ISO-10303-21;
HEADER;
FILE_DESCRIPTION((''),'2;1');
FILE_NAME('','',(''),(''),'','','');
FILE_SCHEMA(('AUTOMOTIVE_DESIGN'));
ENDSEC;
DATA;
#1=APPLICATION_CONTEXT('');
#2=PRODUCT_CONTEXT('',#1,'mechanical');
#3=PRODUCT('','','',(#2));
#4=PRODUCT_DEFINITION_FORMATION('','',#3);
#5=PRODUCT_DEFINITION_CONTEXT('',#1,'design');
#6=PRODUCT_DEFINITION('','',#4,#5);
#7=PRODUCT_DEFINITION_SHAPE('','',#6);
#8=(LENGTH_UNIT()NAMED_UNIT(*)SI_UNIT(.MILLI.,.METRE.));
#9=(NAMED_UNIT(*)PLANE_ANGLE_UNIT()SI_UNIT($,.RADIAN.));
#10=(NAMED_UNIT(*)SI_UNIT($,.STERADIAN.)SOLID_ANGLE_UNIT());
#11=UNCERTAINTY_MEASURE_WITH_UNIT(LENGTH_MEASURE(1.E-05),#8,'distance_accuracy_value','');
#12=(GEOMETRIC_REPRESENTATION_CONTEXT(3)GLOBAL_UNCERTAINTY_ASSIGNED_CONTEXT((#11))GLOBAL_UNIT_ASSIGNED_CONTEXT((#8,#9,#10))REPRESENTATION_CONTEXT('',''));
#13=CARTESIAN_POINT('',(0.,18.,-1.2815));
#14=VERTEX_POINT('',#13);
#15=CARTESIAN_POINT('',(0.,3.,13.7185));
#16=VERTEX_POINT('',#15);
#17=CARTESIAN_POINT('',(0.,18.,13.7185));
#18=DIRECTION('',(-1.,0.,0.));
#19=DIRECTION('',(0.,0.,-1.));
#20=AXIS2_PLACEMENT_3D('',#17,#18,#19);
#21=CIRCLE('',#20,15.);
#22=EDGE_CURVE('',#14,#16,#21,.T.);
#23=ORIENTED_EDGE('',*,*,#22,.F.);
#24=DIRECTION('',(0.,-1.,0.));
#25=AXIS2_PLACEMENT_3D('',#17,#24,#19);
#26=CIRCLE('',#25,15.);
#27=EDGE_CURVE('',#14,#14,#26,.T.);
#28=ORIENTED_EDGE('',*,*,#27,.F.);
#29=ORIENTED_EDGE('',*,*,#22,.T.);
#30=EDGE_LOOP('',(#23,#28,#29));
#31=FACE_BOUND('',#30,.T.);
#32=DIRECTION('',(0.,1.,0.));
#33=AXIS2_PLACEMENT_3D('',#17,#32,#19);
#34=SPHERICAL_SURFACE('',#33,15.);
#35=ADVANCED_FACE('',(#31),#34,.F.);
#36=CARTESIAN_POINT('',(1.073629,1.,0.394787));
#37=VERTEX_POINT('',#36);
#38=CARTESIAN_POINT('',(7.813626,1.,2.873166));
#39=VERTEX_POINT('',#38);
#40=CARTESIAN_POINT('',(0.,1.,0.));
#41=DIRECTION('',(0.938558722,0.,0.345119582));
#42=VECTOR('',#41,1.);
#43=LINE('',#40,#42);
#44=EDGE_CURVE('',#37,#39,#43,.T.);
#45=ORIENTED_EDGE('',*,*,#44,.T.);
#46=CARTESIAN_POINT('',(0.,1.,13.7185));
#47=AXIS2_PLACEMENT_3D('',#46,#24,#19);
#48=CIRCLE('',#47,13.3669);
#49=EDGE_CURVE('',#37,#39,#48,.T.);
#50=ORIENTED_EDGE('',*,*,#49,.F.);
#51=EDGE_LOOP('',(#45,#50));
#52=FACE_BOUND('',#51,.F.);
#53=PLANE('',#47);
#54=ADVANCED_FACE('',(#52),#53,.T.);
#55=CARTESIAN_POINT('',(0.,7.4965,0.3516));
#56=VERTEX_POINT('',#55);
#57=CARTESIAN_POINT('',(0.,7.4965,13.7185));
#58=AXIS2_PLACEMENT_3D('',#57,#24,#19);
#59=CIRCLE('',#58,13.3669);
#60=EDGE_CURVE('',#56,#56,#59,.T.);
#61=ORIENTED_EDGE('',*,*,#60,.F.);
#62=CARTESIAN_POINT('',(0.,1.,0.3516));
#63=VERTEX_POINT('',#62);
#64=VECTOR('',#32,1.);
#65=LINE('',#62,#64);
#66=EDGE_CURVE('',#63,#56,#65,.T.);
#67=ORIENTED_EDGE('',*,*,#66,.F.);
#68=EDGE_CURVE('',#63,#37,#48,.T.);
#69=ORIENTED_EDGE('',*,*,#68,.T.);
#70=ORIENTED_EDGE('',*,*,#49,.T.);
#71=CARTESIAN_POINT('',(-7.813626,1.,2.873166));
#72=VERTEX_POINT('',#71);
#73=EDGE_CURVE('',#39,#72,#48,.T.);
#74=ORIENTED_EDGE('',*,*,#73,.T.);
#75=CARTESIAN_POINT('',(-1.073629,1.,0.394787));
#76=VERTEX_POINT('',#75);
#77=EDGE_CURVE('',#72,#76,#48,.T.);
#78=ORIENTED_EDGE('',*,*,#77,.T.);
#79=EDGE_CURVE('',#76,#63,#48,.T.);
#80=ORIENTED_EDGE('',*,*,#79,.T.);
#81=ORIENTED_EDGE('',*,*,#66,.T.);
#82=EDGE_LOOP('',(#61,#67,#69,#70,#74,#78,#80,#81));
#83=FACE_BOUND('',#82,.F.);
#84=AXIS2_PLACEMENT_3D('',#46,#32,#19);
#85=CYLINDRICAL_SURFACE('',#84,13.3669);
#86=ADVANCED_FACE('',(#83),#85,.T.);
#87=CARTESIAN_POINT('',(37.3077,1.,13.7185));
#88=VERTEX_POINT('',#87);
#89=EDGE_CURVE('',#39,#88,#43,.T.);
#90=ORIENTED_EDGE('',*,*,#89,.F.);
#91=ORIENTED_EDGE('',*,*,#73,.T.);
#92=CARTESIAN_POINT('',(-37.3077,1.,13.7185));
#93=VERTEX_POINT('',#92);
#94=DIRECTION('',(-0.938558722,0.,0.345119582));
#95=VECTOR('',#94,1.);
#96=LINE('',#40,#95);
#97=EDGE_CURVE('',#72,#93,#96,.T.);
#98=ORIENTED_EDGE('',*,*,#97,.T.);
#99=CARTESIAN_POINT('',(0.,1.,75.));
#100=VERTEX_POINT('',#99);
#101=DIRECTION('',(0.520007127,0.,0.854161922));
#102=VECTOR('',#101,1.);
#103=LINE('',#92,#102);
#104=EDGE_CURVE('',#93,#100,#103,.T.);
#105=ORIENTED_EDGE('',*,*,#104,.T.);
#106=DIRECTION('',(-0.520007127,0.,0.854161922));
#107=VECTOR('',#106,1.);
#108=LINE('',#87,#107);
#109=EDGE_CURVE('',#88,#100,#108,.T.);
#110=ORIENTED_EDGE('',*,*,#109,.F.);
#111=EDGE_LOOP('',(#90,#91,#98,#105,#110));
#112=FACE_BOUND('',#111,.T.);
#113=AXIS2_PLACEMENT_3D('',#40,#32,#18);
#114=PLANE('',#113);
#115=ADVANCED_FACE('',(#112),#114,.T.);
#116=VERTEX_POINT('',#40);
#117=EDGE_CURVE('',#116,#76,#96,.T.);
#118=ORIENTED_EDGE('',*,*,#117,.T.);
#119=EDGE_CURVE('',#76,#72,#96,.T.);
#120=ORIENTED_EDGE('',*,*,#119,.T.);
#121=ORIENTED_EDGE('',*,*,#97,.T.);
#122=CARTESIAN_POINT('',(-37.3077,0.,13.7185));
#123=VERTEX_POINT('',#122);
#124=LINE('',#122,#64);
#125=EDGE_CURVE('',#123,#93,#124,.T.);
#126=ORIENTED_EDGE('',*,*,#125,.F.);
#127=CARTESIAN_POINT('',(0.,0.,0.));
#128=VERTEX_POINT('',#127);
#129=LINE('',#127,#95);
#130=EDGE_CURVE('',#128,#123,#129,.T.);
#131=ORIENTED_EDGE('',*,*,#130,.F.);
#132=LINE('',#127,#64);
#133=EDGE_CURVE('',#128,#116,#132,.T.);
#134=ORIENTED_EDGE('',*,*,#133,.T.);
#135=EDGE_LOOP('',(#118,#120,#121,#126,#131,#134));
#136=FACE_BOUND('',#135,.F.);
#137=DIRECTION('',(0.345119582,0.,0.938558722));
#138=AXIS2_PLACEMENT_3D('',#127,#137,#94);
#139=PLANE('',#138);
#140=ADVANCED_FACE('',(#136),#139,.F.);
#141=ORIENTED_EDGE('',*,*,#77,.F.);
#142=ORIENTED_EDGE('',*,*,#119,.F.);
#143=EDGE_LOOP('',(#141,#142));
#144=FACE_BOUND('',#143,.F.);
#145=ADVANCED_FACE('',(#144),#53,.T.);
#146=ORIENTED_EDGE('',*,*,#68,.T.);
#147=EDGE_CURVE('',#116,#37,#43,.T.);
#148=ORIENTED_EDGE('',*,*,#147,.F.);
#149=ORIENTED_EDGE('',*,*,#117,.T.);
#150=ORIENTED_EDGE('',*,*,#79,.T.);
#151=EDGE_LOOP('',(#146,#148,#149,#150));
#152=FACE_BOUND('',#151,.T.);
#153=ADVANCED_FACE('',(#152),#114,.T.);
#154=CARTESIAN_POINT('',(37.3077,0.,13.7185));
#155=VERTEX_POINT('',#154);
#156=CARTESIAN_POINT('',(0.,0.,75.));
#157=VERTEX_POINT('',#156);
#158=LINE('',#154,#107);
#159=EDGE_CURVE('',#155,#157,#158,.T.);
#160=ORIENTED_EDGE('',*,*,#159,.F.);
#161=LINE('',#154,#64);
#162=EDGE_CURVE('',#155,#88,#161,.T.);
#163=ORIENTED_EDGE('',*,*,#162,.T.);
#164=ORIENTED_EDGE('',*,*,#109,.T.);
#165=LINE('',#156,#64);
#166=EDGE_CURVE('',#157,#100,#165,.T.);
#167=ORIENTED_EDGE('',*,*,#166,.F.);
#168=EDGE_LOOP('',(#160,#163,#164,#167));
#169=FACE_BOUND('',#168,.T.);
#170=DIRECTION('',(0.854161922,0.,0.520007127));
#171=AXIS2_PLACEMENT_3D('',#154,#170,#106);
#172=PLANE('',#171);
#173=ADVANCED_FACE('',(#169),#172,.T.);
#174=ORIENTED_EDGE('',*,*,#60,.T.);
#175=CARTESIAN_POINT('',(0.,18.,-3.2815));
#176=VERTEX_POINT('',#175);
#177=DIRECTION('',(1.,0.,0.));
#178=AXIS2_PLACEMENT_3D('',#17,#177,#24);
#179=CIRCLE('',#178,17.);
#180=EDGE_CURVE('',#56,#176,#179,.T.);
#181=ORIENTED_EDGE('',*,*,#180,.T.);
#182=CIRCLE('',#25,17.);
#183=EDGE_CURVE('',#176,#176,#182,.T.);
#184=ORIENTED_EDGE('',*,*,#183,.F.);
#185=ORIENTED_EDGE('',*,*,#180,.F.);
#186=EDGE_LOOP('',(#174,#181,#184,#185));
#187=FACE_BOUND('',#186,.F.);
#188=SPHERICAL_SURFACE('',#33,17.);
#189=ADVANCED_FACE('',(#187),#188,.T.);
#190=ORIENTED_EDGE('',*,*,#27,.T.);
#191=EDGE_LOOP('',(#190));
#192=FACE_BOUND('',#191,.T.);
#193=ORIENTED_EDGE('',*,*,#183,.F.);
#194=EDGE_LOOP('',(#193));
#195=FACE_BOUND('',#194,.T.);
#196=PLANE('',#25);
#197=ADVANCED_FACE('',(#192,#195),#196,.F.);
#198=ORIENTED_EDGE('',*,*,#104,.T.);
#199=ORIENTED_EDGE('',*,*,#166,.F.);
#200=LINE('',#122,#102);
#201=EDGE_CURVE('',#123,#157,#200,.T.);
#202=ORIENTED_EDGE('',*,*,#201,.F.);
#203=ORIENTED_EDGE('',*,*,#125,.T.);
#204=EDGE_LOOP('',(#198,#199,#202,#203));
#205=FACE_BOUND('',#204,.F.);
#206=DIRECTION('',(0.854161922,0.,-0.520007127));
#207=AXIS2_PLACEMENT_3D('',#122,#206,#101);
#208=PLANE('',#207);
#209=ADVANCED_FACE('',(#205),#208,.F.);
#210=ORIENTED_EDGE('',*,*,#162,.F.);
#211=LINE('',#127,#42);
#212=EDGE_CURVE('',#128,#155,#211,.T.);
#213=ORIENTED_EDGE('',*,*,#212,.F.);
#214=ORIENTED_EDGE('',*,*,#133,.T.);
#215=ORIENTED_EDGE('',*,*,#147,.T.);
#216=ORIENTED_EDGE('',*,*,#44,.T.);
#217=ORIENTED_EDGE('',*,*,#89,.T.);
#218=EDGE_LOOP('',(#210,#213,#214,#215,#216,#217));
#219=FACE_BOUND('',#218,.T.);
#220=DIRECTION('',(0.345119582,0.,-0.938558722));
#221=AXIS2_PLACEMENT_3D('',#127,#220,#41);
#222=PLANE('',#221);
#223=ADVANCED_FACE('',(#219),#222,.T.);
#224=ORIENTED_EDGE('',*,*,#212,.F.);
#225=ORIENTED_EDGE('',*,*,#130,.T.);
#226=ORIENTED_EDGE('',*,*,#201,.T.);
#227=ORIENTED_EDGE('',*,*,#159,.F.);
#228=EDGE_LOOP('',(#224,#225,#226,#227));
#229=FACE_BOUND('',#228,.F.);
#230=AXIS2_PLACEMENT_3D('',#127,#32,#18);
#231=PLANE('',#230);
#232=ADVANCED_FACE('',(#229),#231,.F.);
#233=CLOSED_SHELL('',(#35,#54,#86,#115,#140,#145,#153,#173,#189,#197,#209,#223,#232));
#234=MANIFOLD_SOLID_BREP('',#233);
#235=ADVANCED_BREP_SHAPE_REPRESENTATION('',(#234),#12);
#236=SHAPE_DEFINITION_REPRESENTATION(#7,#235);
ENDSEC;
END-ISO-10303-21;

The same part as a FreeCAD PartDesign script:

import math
import FreeCAD as App
import Part
import Sketcher
Q = App.Units.Quantity


def add_polygon(sketch, points):
    """Adds a closed chain of lines whose ends are joined by coincident constraints."""
    first, n = sketch.GeometryCount, len(points)
    for a, b in zip(points, points[1:] + points[:1]):
        sketch.addGeometry(Part.LineSegment(App.Vector(*a, 0), App.Vector(*b, 0)), False)
    for i in range(n):
        sketch.addConstraint(Sketcher.Constraint("Coincident", first + i, 2, first + (i + 1) % n, 1))

doc = App.newDocument("Part")
body = doc.addObject("PartDesign::Body", "Body")

# Sketch on XZ plane
sketch1 = doc.addObject("Sketcher::SketchObject", "Sketch")
body.addObject(sketch1)
sketch1.AttachmentSupport = (doc.XZ_Plane, [""])
sketch1.MapMode = "FlatFace"
add_polygon(sketch1, [(37, 14), (0, 0), (-37, 14), (0, 75)])  # lines 0-3
sketch1.addConstraint([
    Sketcher.Constraint("Coincident", 0, 2, -1, 1),
    Sketcher.Constraint("Symmetric", 1, 2, 3, 2, -2),
    Sketcher.Constraint("PointOnObject", 2, 2, -2),
    Sketcher.Constraint("Distance", 0, 39.75),
    Sketcher.Constraint("DistanceY", -1, 1, 2, 2, 75.0),
    Sketcher.Constraint("Angle", 0, Q("-159.811 deg")),
])
pad1 = doc.addObject("PartDesign::Pad", "Pad")
body.addObject(pad1)
pad1.Profile = sketch1
pad1.Length = 1
pad1.Reversed = True

# Sketch on YZ plane
sketch2 = doc.addObject("Sketcher::SketchObject", "Sketch001")
body.addObject(sketch2)
sketch2.AttachmentSupport = (doc.YZ_Plane, [""])
sketch2.MapMode = "FlatFace"
sketch2.addGeometry([
    Part.ArcOfCircle(Part.Circle(App.Vector(18, 13.7, 0), App.Vector(0, 0, 1), 15), math.radians(180), math.radians(270)),  # 0
    Part.LineSegment(App.Vector(3, 13.7, 0), App.Vector(1, 13.7, 0)),  # 1
    Part.LineSegment(App.Vector(1, 13.7, 0), App.Vector(1, 0.4, 0)),  # 2
    Part.LineSegment(App.Vector(1, 0.4, 0), App.Vector(7.5, 0.4, 0)),  # 3
    Part.ArcOfCircle(Part.Circle(App.Vector(18, 13.7, 0), App.Vector(0, 0, 1), 17), math.radians(-128), math.radians(-90)),  # 4
    Part.LineSegment(App.Vector(18, -3.3, 0), App.Vector(18, -1.3, 0)),  # 5
], False)
sketch2.addGeometry(Part.LineSegment(App.Vector(18, 13.7, 0), App.Vector(1, 13.7, 0)), True)  # axis
sketch2.addConstraint([
    Sketcher.Constraint("Coincident", 0, 1, 1, 1),
    Sketcher.Constraint("Coincident", 1, 2, 2, 1),
    Sketcher.Constraint("Coincident", 2, 2, 3, 1),
    Sketcher.Constraint("Coincident", 3, 2, 4, 1),
    Sketcher.Constraint("Coincident", 4, 2, 5, 1),
    Sketcher.Constraint("Coincident", 5, 2, 0, 2),
    Sketcher.Constraint("Horizontal", 1),
    Sketcher.Constraint("Vertical", 2),
    Sketcher.Constraint("Horizontal", 3),
    Sketcher.Constraint("Vertical", 5),
    Sketcher.Constraint("Horizontal", 6),
    Sketcher.Constraint("Coincident", 4, 3, 0, 3),
    Sketcher.Constraint("Coincident", 6, 1, 0, 3),
    Sketcher.Constraint("Coincident", 6, 2, 1, 2),
    Sketcher.Constraint("Vertical", 0, 3, 4, 2),
    Sketcher.Constraint("Equal", 1, 5),
    Sketcher.Constraint("Radius", 0, 15.0),
    Sketcher.Constraint("DistanceX", 1, 2, 1, 1, 2.0),
    Sketcher.Constraint("DistanceX", -1, 1, 0, 3, 18.0),
    Sketcher.Constraint("DistanceY", 2, 2, 2, 1, 13.367),
    Sketcher.Constraint("DistanceY", -1, 1, 0, 3, 13.7185),
])
revolution = doc.addObject("PartDesign::Revolution", "Revolution")
body.addObject(revolution)
revolution.Profile = sketch2
revolution.ReferenceAxis = (sketch2, ["Axis0"])
revolution.Angle = 360

doc.recompute()
